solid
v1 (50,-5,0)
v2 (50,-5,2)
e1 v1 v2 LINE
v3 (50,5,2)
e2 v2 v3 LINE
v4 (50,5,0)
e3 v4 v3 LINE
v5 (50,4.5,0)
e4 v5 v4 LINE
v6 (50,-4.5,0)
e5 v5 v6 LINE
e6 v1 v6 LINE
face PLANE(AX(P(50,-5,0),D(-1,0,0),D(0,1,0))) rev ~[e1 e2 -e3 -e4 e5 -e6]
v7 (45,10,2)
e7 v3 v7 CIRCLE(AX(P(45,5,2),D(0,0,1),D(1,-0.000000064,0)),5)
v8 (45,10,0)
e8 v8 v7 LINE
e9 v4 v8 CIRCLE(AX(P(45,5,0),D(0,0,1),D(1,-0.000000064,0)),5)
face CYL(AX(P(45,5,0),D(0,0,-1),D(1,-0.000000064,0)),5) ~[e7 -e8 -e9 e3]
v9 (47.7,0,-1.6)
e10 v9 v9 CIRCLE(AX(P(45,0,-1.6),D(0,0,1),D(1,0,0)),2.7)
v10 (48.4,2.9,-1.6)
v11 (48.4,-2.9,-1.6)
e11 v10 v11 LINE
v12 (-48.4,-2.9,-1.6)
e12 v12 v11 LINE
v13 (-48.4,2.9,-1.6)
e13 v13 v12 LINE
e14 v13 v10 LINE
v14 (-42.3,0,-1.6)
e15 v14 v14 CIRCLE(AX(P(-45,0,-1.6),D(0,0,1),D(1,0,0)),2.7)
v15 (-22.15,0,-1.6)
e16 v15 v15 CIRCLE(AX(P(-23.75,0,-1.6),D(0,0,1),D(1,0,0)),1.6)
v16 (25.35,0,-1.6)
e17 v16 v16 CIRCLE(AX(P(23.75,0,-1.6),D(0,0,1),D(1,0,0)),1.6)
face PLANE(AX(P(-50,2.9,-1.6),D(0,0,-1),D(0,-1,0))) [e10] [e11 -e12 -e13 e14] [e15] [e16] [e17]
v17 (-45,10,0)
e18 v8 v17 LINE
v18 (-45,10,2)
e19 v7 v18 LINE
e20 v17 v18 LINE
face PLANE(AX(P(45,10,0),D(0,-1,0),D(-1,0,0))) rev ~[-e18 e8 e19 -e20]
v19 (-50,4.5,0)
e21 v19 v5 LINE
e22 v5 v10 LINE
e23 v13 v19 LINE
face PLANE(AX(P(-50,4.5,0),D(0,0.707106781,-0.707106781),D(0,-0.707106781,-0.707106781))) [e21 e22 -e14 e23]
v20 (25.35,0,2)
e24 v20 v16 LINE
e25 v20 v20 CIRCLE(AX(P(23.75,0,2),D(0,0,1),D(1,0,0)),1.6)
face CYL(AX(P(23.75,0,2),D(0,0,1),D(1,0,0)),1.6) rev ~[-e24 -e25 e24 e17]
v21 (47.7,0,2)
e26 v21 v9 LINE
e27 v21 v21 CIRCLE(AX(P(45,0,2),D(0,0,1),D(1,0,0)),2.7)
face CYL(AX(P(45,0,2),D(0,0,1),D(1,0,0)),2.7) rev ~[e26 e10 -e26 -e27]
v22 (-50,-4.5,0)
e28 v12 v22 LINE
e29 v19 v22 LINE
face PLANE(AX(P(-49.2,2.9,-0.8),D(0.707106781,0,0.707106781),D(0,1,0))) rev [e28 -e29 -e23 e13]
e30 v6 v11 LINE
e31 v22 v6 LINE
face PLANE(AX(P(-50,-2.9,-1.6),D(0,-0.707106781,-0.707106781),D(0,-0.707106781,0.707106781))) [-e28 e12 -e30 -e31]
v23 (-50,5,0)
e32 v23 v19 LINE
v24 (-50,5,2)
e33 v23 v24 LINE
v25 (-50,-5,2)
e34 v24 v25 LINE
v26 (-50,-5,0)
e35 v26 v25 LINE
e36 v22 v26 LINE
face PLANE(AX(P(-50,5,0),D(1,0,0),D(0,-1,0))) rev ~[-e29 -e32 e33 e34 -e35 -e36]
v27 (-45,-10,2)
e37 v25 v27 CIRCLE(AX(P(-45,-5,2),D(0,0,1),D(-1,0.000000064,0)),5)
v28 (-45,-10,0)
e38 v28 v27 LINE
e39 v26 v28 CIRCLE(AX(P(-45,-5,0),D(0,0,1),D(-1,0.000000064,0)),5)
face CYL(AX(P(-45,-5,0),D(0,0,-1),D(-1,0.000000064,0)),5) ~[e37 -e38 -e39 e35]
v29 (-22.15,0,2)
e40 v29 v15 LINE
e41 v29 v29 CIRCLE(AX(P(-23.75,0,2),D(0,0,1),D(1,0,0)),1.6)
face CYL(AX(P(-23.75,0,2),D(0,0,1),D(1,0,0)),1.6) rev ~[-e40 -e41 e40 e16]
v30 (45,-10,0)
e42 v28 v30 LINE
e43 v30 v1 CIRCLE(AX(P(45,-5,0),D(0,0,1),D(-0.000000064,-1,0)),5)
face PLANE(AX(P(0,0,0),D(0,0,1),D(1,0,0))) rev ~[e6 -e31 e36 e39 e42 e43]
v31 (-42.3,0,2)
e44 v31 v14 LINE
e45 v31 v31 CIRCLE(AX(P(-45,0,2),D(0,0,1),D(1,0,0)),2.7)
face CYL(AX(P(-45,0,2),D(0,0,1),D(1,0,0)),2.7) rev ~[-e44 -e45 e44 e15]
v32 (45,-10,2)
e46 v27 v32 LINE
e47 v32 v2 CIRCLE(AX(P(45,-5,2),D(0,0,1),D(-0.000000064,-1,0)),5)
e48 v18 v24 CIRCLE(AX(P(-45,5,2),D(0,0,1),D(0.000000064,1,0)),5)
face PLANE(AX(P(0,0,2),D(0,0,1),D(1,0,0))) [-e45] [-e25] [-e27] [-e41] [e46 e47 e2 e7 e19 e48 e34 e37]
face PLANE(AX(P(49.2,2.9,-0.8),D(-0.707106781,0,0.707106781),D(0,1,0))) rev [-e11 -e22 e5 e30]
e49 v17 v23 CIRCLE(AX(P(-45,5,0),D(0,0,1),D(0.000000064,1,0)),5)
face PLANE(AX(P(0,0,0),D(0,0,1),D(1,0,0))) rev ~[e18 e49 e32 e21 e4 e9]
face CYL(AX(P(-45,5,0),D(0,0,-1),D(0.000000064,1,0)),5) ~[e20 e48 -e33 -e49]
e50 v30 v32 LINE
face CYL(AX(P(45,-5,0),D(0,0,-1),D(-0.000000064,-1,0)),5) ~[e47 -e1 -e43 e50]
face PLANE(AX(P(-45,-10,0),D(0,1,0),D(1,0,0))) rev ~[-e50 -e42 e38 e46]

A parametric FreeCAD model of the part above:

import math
import FreeCAD as App
import Part
import Sketcher


def edges_at(feature, points):
    """Names of the edges that pass closest to the given points."""
    edges = feature.Shape.Edges
    near = lambda p: min(range(len(edges)), key=lambda i: edges[i].distToShape(Part.Vertex(*p))[0])
    return sorted({f"Edge{near(p) + 1}" for p in points})


def add_polygon(sketch, points):
    """Adds a closed chain of lines whose ends are joined by coincident constraints."""
    first, n = sketch.GeometryCount, len(points)
    for a, b in zip(points, points[1:] + points[:1]):
        sketch.addGeometry(Part.LineSegment(App.Vector(*a, 0), App.Vector(*b, 0)), False)
    for i in range(n):
        sketch.addConstraint(Sketcher.Constraint("Coincident", first + i, 2, first + (i + 1) % n, 1))

doc = App.newDocument("Part")
body = doc.addObject("PartDesign::Body", "Body")

# Sketch on XY plane
sketch1 = body.newObject("Sketcher::SketchObject", "Sketch")
sketch1.AttachmentSupport = (doc.getObject("XY_Plane"), [""])
sketch1.MapMode = "FlatFace"
sketch1.addGeometry(Part.ArcOfCircle(Part.Circle(App.Vector(45, 5, 0), App.Vector(0, 0, 1), 5), math.radians(0), math.radians(90)), False)
sketch1.addGeometry(Part.LineSegment(App.Vector(45, 10, 0), App.Vector(-45, 10, 0)), False)
sketch1.addGeometry(Part.ArcOfCircle(Part.Circle(App.Vector(-45, 5, 0), App.Vector(0, 0, 1), 5), math.radians(90), math.radians(180)), False)
sketch1.addGeometry(Part.LineSegment(App.Vector(-50, 5, 0), App.Vector(-50, -5, 0)), False)
sketch1.addGeometry(Part.ArcOfCircle(Part.Circle(App.Vector(-45, -5, 0), App.Vector(0, 0, 1), 5), math.radians(180), math.radians(270)), False)
sketch1.addGeometry(Part.LineSegment(App.Vector(-45, -10, 0), App.Vector(45, -10, 0)), False)
sketch1.addGeometry(Part.ArcOfCircle(Part.Circle(App.Vector(45, -5, 0), App.Vector(0, 0, 1), 5), math.radians(-90), math.radians(0)), False)
sketch1.addGeometry(Part.LineSegment(App.Vector(50, -5, 0), App.Vector(50, 5, 0)), False)
sketch1.addConstraint(Sketcher.Constraint("Tangent", 0, 2, 1, 1))
sketch1.addConstraint(Sketcher.Constraint("Tangent", 1, 2, 2, 1))
sketch1.addConstraint(Sketcher.Constraint("Tangent", 2, 2, 3, 1))
sketch1.addConstraint(Sketcher.Constraint("Tangent", 3, 2, 4, 1))
sketch1.addConstraint(Sketcher.Constraint("Tangent", 4, 2, 5, 1))
sketch1.addConstraint(Sketcher.Constraint("Tangent", 5, 2, 6, 1))
sketch1.addConstraint(Sketcher.Constraint("Tangent", 6, 2, 7, 1))
sketch1.addConstraint(Sketcher.Constraint("Tangent", 7, 2, 0, 1))
sketch1.addConstraint(Sketcher.Constraint("Horizontal", 1))
sketch1.addConstraint(Sketcher.Constraint("Vertical", 3))
sketch1.addConstraint(Sketcher.Constraint("Horizontal", 5))
sketch1.addConstraint(Sketcher.Constraint("Vertical", 7))
sketch1.addConstraint(Sketcher.Constraint("Equal", 0, 2))
sketch1.addConstraint(Sketcher.Constraint("Equal", 2, 4))
sketch1.addConstraint(Sketcher.Constraint("Equal", 4, 6))
sketch1.addConstraint(Sketcher.Constraint("Symmetric", 0, 3, 4, 3, -1, 1))
sketch1.addConstraint(Sketcher.Constraint("Radius", 0, 5.0))
sketch1.addConstraint(Sketcher.Constraint("DistanceX", 1, 2, 1, 1, 90.0))
sketch1.addConstraint(Sketcher.Constraint("DistanceY", 3, 2, 3, 1, 10.0))
pad1 = body.newObject("PartDesign::Pad", "Pad")
pad1.Profile = sketch1
pad1.Length = 2

# Sketch on YZ plane
sketch2 = body.newObject("Sketcher::SketchObject", "Sketch001")
sketch2.AttachmentSupport = (doc.getObject("YZ_Plane"), [""])
sketch2.MapMode = "FlatFace"
sketch2.AttachmentOffset = App.Placement(App.Vector(0, 0, -50), App.Rotation())
add_polygon(sketch2, [(4.5, 0), (2.9, -1.6), (-2.9, -1.6), (-4.5, 0)])  # lines 0-3
sketch2.addConstraint(Sketcher.Constraint("Horizontal", 1))
sketch2.addConstraint(Sketcher.Constraint("Horizontal", 3))
sketch2.addConstraint(Sketcher.Constraint("Symmetric", 2, 2, 3, 2, -1, 1))
sketch2.addConstraint(Sketcher.Constraint("Perpendicular", 0, 2))
sketch2.addConstraint(Sketcher.Constraint("Equal", 0, 2))
sketch2.addConstraint(Sketcher.Constraint("DistanceX", 3, 1, 3, 2, 9.0))
sketch2.addConstraint(Sketcher.Constraint("DistanceX", 1, 2, 1, 1, 5.8))
pad2 = body.newObject("PartDesign::Pad", "Pad001")
pad2.Profile = sketch2
pad2.Length = 100

# Sketch on XY plane
sketch3 = body.newObject("Sketcher::SketchObject", "Sketch002")
sketch3.AttachmentSupport = (doc.getObject("XY_Plane"), [""])
sketch3.MapMode = "FlatFace"
sketch3.AttachmentOffset = App.Placement(App.Vector(0, 0, 2), App.Rotation())
sketch3.addGeometry(Part.Circle(App.Vector(-45, 0, 0), App.Vector(0, 0, 1), 2.7), False)
sketch3.addGeometry(Part.Circle(App.Vector(45, 0, 0), App.Vector(0, 0, 1), 2.7), False)
sketch3.addGeometry(Part.Circle(App.Vector(23.8, 0, 0), App.Vector(0, 0, 1), 1.6), False)
sketch3.addGeometry(Part.Circle(App.Vector(-23.8, 0, 0), App.Vector(0, 0, 1), 1.6), False)
sketch3.addConstraint(Sketcher.Constraint("Equal", 0, 1))
sketch3.addConstraint(Sketcher.Constraint("Equal", 2, 3))
sketch3.addConstraint(Sketcher.Constraint("Symmetric", 0, 3, 1, 3, -1, 1))
sketch3.addConstraint(Sketcher.Constraint("Symmetric", 2, 3, 3, 3, -1, 1))
sketch3.addConstraint(Sketcher.Constraint("PointOnObject", 0, 3, -1))
sketch3.addConstraint(Sketcher.Constraint("PointOnObject", 2, 3, -1))
sketch3.addConstraint(Sketcher.Constraint("Diameter", 0, 5.4))
sketch3.addConstraint(Sketcher.Constraint("Diameter", 2, 3.2))
sketch3.addConstraint(Sketcher.Constraint("DistanceX", 0, 3, -1, 1, 45.0))
sketch3.addConstraint(Sketcher.Constraint("DistanceX", 3, 3, 2, 3, 47.5))
pocket1 = body.newObject("PartDesign::Pocket", "Pocket")
pocket1.Profile = sketch3
pocket1.Type = "ThroughAll"
doc.recompute()

chamfer = body.newObject("PartDesign::Chamfer", "Chamfer")
chamfer.Base = (pocket1, edges_at(pocket1, [(-50, 0, -1.6), (50, 0, -1.6)]))
chamfer.Size = 1.6

doc.recompute()
